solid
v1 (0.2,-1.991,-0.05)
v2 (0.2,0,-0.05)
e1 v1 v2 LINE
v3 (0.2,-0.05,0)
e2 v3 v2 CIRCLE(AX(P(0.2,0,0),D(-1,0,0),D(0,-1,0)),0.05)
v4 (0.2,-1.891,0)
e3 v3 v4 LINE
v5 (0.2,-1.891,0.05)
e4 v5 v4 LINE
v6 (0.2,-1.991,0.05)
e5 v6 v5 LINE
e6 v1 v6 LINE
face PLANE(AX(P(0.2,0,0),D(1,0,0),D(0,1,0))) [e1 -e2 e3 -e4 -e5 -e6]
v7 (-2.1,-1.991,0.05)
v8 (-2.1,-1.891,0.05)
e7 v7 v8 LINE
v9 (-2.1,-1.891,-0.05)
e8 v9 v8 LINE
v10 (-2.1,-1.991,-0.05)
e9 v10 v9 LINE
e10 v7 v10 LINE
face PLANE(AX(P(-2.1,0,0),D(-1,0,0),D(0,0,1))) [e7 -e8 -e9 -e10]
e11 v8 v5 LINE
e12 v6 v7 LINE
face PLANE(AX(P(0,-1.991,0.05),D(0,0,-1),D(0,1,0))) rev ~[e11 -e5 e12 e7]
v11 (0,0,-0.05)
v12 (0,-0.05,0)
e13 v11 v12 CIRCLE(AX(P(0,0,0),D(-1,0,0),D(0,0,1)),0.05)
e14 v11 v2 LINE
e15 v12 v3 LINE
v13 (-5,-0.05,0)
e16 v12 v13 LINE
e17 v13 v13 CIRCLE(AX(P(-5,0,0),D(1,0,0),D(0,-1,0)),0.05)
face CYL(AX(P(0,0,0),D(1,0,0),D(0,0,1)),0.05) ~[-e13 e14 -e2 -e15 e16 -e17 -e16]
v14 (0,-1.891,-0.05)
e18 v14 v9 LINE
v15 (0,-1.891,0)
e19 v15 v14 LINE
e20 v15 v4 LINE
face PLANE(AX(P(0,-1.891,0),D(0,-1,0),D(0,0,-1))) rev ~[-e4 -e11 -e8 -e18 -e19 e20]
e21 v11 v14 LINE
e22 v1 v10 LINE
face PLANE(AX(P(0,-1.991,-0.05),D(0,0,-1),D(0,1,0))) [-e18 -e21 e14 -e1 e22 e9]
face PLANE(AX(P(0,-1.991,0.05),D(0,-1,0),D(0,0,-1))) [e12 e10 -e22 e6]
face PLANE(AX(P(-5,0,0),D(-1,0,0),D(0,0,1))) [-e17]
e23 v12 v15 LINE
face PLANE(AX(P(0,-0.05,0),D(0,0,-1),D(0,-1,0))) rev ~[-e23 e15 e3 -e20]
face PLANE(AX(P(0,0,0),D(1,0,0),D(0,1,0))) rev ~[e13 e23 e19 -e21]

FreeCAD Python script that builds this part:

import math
import FreeCAD as App
import Part
import Sketcher

V = App.Vector

doc = App.newDocument("Part")
params = doc.addObject("Spreadsheet::Sheet", "Params")
for row, (alias, value) in enumerate([
    ("sketch1_radius", "0.05 mm"),
    ("sketch1_width", "0.1 mm"),
    ("pad1_length", "0.2 mm"),
    ("sketch2_diameter", "0.1 mm"),
    ("pad2_length", "5 mm"),
    ("sketch3_width", "0.1 mm"),
    ("pad3_length", "2.1 mm"),
], start=1):
    params.set(f"A{row}", alias)
    params.set(f"B{row}", "=" + value)
    params.setAlias(f"B{row}", alias)

body = doc.addObject("PartDesign::Body", "Body")

sketch1 = body.newObject("Sketcher::SketchObject", "Sketch")
sketch1.AttachmentSupport = (doc.getObject("YZ_Plane"), [""])
sketch1.MapMode = "FlatFace"
sketch1.addGeometry(Part.LineSegment(V(-0.05, 0, 0), V(-1.89, 0, 0)), False)
sketch1.addGeometry(Part.LineSegment(V(-1.89, 0, 0), V(-1.89, 0.05, 0)), False)
sketch1.addGeometry(Part.LineSegment(V(-1.89, 0.05, 0), V(-1.99, 0.05, 0)), False)
sketch1.addGeometry(Part.LineSegment(V(-1.99, 0.05, 0), V(-1.99, -0.05, 0)), False)
sketch1.addGeometry(Part.LineSegment(V(-1.99, -0.05, 0), V(0, -0.05, 0)), False)
sketch1.addGeometry(Part.ArcOfCircle(Part.Circle(V(0, 0, 0), V(0, 0, 1), 0.05), math.radians(-90), math.radians(180)), False)
sketch1.addConstraint(Sketcher.Constraint("Coincident", 0, 2, 1, 1))
sketch1.addConstraint(Sketcher.Constraint("Coincident", 1, 2, 2, 1))
sketch1.addConstraint(Sketcher.Constraint("Coincident", 2, 2, 3, 1))
sketch1.addConstraint(Sketcher.Constraint("Coincident", 3, 2, 4, 1))
sketch1.addConstraint(Sketcher.Constraint("Tangent", 4, 2, 5, 1))
sketch1.addConstraint(Sketcher.Constraint("Coincident", 5, 2, 0, 1))
sketch1.addConstraint(Sketcher.Constraint("Horizontal", 0))
sketch1.addConstraint(Sketcher.Constraint("Vertical", 1))
sketch1.addConstraint(Sketcher.Constraint("Horizontal", 2))
sketch1.addConstraint(Sketcher.Constraint("Vertical", 3))
sketch1.addConstraint(Sketcher.Constraint("Horizontal", 4))
sketch1.addConstraint(Sketcher.Constraint("Coincident", 5, 3, -1, 1))
sketch1.addConstraint(Sketcher.Constraint("PointOnObject", 0, 2, -1))
sketch1.addConstraint(Sketcher.Constraint("Equal", 2, 3))
sketch1.addConstraint(Sketcher.Constraint("Radius", 5, 0.05))
sketch1.addConstraint(Sketcher.Constraint("DistanceX", 2, 2, 2, 1, 0.1))
sketch1.addConstraint(Sketcher.Constraint("DistanceX", 2, 2, 5, 2, 1.941))
sketch1.setExpression("Constraints[14]", "Params.sketch1_radius")
sketch1.setExpression("Constraints[15]", "Params.sketch1_width")
pad1 = body.newObject("PartDesign::Pad", "Pad")
pad1.Profile = sketch1
pad1.setExpression("Length", "Params.pad1_length")

sketch2 = body.newObject("Sketcher::SketchObject", "Sketch001")
sketch2.AttachmentSupport = (doc.getObject("YZ_Plane"), [""])
sketch2.MapMode = "FlatFace"
sketch2.addGeometry(Part.Circle(V(0, 0, 0), V(0, 0, 1), 0.05), False)
sketch2.addConstraint(Sketcher.Constraint("Coincident", 0, 3, -1, 1))
sketch2.addConstraint(Sketcher.Constraint("Diameter", 0, 0.1))
sketch2.setExpression("Constraints[1]", "Params.sketch2_diameter")
pad2 = body.newObject("PartDesign::Pad", "Pad001")
pad2.Profile = sketch2
pad2.setExpression("Length", "Params.pad2_length")
pad2.Reversed = True

sketch3 = body.newObject("Sketcher::SketchObject", "Sketch002")
sketch3.AttachmentSupport = (doc.getObject("YZ_Plane"), [""])
sketch3.MapMode = "FlatFace"
sketch3.addGeometry(Part.LineSegment(V(-1.89, -0.05, 0), V(-1.99, -0.05, 0)), False)
sketch3.addGeometry(Part.LineSegment(V(-1.99, -0.05, 0), V(-1.99, 0.05, 0)), False)
sketch3.addGeometry(Part.LineSegment(V(-1.99, 0.05, 0), V(-1.89, 0.05, 0)), False)
sketch3.addGeometry(Part.LineSegment(V(-1.89, 0.05, 0), V(-1.89, -0.05, 0)), False)
sketch3.addConstraint(Sketcher.Constraint("Coincident", 0, 2, 1, 1))
sketch3.addConstraint(Sketcher.Constraint("Coincident", 1, 2, 2, 1))
sketch3.addConstraint(Sketcher.Constraint("Coincident", 2, 2, 3, 1))
sketch3.addConstraint(Sketcher.Constraint("Coincident", 3, 2, 0, 1))
sketch3.addConstraint(Sketcher.Constraint("Horizontal", 0))
sketch3.addConstraint(Sketcher.Constraint("Vertical", 1))
sketch3.addConstraint(Sketcher.Constraint("Horizontal", 2))
sketch3.addConstraint(Sketcher.Constraint("Vertical", 3))
sketch3.addConstraint(Sketcher.Constraint("Equal", 2, 1))
sketch3.addConstraint(Sketcher.Constraint("DistanceX", 0, 2, 0, 1, 0.1))
sketch3.addConstraint(Sketcher.Constraint("DistanceY", 0, 2, -1, 1, 0.05))
sketch3.addConstraint(Sketcher.Constraint("DistanceX", 0, 2, -1, 1, 1.991))
sketch3.setExpression("Constraints[9]", "Params.sketch3_width")
pad3 = body.newObject("PartDesign::Pad", "Pad002")
pad3.Profile = sketch3
pad3.setExpression("Length", "Params.pad3_length")
pad3.Reversed = True

doc.recompute()
